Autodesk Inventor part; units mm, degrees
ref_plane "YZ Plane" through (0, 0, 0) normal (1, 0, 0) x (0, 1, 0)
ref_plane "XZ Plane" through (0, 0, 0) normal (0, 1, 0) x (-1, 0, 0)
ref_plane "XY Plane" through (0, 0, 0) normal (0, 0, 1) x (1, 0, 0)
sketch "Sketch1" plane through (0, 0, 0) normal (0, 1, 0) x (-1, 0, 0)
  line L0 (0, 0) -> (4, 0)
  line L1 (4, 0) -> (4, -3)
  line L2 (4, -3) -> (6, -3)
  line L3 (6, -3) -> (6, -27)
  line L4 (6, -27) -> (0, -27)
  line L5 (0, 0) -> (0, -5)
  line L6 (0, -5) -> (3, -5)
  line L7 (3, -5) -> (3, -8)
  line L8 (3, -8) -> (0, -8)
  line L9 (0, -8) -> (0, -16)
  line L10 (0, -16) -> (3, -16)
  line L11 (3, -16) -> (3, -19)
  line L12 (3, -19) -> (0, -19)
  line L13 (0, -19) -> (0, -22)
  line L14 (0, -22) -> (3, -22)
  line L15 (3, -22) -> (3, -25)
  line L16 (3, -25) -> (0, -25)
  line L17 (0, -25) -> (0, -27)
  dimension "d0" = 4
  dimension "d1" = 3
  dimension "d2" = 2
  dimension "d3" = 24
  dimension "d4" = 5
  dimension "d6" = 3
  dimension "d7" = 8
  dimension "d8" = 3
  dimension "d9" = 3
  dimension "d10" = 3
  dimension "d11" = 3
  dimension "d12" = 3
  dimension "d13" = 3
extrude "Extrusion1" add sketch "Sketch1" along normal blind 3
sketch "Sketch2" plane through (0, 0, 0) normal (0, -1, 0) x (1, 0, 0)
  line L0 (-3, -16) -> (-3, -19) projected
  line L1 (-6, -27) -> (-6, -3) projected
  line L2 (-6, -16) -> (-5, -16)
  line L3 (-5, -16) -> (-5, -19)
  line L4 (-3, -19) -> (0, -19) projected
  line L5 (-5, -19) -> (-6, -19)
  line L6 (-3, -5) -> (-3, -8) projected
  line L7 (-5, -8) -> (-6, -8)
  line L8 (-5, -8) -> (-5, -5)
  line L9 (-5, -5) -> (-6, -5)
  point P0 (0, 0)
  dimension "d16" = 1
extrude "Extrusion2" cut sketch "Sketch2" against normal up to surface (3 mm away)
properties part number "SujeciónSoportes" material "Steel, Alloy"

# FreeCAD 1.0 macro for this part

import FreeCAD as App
import Part
import Sketcher
from FreeCAD import Vector


def add_polygon(sketch, points):
    """Adds a closed chain of lines whose ends are joined by coincident constraints."""
    first, n = sketch.GeometryCount, len(points)
    for a, b in zip(points, points[1:] + points[:1]):
        sketch.addGeometry(Part.LineSegment(App.Vector(*a, 0), App.Vector(*b, 0)), False)
    for i in range(n):
        sketch.addConstraint(Sketcher.Constraint("Coincident", first + i, 2, first + (i + 1) % n, 1))

doc = App.newDocument("Part")
params = doc.addObject("Spreadsheet::Sheet", "Params")
for row, (alias, value) in enumerate([
    ("sketch1_width", "4 mm"),
    ("sketch1_width2", "3 mm"),
    ("sketch1_width3", "2 mm"),
    ("sketch1_height", "5 mm"),
    ("sketch1_height2", "8 mm"),
    ("pad1_length", "3 mm"),
    ("sketch2_width", "1 mm"),
    ("sketch2_height", "3 mm"),
    ("pocket1_length", "3 mm"),
], start=1):
    params.set(f"A{row}", alias)
    params.set(f"B{row}", "=" + value)
    params.setAlias(f"B{row}", alias)

body = doc.addObject("PartDesign::Body", "Body")

sketch1 = body.newObject("Sketcher::SketchObject", "Sketch")
sketch1.AttachmentSupport = (doc.getObject("XZ_Plane"), [""])
sketch1.MapMode = "FlatFace"
add_polygon(sketch1, [(-4, 0), (0, 0), (0, -5), (-3, -5), (-3, -8), (0, -8), (0, -16), (-3, -16), (-3, -19), (0, -19), (0, -22), (-3, -22), (-3, -25), (0, -25), (0, -27), (-6, -27), (-6, -3), (-4, -3)])
sketch1.addConstraint([
    Sketcher.Constraint("Horizontal", 0),
    Sketcher.Constraint("Vertical", 1),
    Sketcher.Constraint("Horizontal", 2),
    Sketcher.Constraint("Vertical", 3),
    Sketcher.Constraint("Horizontal", 4),
    Sketcher.Constraint("Vertical", 5),
    Sketcher.Constraint("Horizontal", 6),
    Sketcher.Constraint("Vertical", 7),
    Sketcher.Constraint("Horizontal", 8),
    Sketcher.Constraint("Vertical", 9),
    Sketcher.Constraint("Horizontal", 10),
    Sketcher.Constraint("Vertical", 11),
    Sketcher.Constraint("Horizontal", 12),
    Sketcher.Constraint("Vertical", 13),
    Sketcher.Constraint("Horizontal", 14),
    Sketcher.Constraint("Vertical", 15),
    Sketcher.Constraint("Horizontal", 16),
    Sketcher.Constraint("Vertical", 17),
    Sketcher.Constraint("Coincident", 0, 2, -1, 1),
    Sketcher.Constraint("PointOnObject", 4, 2, -2),
    Sketcher.Constraint("PointOnObject", 8, 2, -2),
    Sketcher.Constraint("PointOnObject", 12, 2, -2),
    Sketcher.Constraint("Vertical", 3, 2, 6, 2),
    Sketcher.Constraint("Vertical", 7, 2, 10, 2),
    Sketcher.Constraint("Equal", 12, 3),
    Sketcher.Constraint("Equal", 3, 7),
    Sketcher.Constraint("Equal", 7, 9),
    Sketcher.Constraint("Equal", 9, 11),
    Sketcher.Constraint("Equal", 16, 13),
    Sketcher.Constraint("Equal", 11, 17),
    Sketcher.Constraint("DistanceX", 0, 1, 0, 2, 4.0),
    Sketcher.Constraint("DistanceX", 2, 2, 2, 1, 3.0),
    Sketcher.Constraint("DistanceX", 16, 1, 16, 2, 2.0),
    Sketcher.Constraint("DistanceY", 1, 2, 1, 1, 5.0),
    Sketcher.Constraint("DistanceY", 5, 2, 5, 1, 8.0),
])
sketch1.setExpression("Constraints[48]", "Params.sketch1_width")
sketch1.setExpression("Constraints[49]", "Params.sketch1_width2")
sketch1.setExpression("Constraints[50]", "Params.sketch1_width3")
sketch1.setExpression("Constraints[51]", "Params.sketch1_height")
sketch1.setExpression("Constraints[52]", "Params.sketch1_height2")
pad1 = body.newObject("PartDesign::Pad", "Pad")
pad1.Profile = sketch1
pad1.setExpression("Length", "Params.pad1_length")
pad1.Reversed = True

sketch2 = body.newObject("Sketcher::SketchObject", "Sketch001")
sketch2.AttachmentSupport = (doc.getObject("XZ_Plane"), [""])
sketch2.MapMode = "FlatFace"
add_polygon(sketch2, [(-6, -5), (-6, -8), (-5, -8), (-5, -5)])
add_polygon(sketch2, [(-6, -16), (-6, -19), (-5, -19), (-5, -16)])
sketch2.addConstraint([
    Sketcher.Constraint("Vertical", 0),
    Sketcher.Constraint("Horizontal", 1),
    Sketcher.Constraint("Vertical", 2),
    Sketcher.Constraint("Horizontal", 3),
    Sketcher.Constraint("Vertical", 4),
    Sketcher.Constraint("Horizontal", 5),
    Sketcher.Constraint("Vertical", 6),
    Sketcher.Constraint("Horizontal", 7),
    Sketcher.Constraint("Vertical", 3, 2, 4, 2),
    Sketcher.Constraint("Vertical", 2, 2, 5, 2),
    Sketcher.Constraint("Equal", 2, 4),
    Sketcher.Constraint("DistanceX", 1, 1, 1, 2, 1.0),
    Sketcher.Constraint("DistanceY", 0, 2, 0, 1, 3.0),
    Sketcher.Constraint("DistanceX", 0, 2, -1, 1, 6.0),
    Sketcher.Constraint("DistanceY", 0, 2, -1, 1, 8.0),
    Sketcher.Constraint("DistanceY", 4, 2, -1, 1, 19.0),
])
sketch2.setExpression("Constraints[19]", "Params.sketch2_width")
sketch2.setExpression("Constraints[20]", "Params.sketch2_height")
pocket1 = body.newObject("PartDesign::Pocket", "Pocket")
pocket1.Profile = sketch2
pocket1.setExpression("Length", "Params.pocket1_length")

doc.recompute()
